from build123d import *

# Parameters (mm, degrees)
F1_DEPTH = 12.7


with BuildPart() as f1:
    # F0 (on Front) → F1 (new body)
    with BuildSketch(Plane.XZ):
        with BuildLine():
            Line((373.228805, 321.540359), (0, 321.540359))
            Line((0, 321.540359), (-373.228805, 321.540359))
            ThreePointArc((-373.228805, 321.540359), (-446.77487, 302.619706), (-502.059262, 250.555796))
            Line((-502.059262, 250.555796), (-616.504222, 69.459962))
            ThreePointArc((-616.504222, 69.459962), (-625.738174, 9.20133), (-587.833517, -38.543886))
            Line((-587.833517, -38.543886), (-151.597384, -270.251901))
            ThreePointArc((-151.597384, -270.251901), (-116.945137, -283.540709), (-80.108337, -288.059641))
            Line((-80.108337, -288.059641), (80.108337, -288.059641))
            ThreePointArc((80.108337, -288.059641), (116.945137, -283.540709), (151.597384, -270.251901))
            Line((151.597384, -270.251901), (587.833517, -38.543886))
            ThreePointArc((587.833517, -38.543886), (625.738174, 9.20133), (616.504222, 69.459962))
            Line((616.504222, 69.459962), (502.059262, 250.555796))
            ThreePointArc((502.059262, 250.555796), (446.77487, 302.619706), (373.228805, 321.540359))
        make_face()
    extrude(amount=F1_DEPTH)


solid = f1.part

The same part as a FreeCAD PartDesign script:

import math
import FreeCAD as App
import Part
import Sketcher
from FreeCAD import Vector
Q = App.Units.Quantity

doc = App.newDocument("Part")
body = doc.addObject("PartDesign::Body", "Body")

sketch1 = doc.addObject("Sketcher::SketchObject", "Sketch")
body.addObject(sketch1)
sketch1.AttachmentSupport = (doc.XZ_Plane, [""])
sketch1.MapMode = "FlatFace"
sketch1.addGeometry(Part.LineSegment(Vector(373, 322, 0), Vector(-373, 322, 0)), False)
sketch1.addGeometry(Part.ArcOfCircle(Part.Circle(Vector(-373, 169, 0), Vector(0, 0, 1), 152), math.radians(90), math.radians(148)), False)
sketch1.addGeometry(Part.LineSegment(Vector(-502, 251, 0), Vector(-617, 69, 0)), False)
sketch1.addGeometry(Part.ArcOfCircle(Part.Circle(Vector(-552, 29, 0), Vector(0, 0, 1), 76), math.radians(148), math.radians(242)), False)
sketch1.addGeometry(Part.LineSegment(Vector(-588, -39, 0), Vector(-152, -270, 0)), False)
sketch1.addGeometry(Part.ArcOfCircle(Part.Circle(Vector(-80, -136, 0), Vector(0, 0, 1), 152), math.radians(-118), math.radians(-90)), False)
sketch1.addGeometry(Part.LineSegment(Vector(-80, -288, 0), Vector(80, -288, 0)), False)
sketch1.addGeometry(Part.ArcOfCircle(Part.Circle(Vector(80, -136, 0), Vector(0, 0, 1), 152), math.radians(-90), math.radians(-62)), False)
sketch1.addGeometry(Part.LineSegment(Vector(152, -270, 0), Vector(588, -39, 0)), False)
sketch1.addGeometry(Part.ArcOfCircle(Part.Circle(Vector(552, 29, 0), Vector(0, 0, 1), 76), math.radians(-62), math.radians(32)), False)
sketch1.addGeometry(Part.LineSegment(Vector(617, 69, 0), Vector(502, 251, 0)), False)
sketch1.addGeometry(Part.ArcOfCircle(Part.Circle(Vector(373, 169, 0), Vector(0, 0, 1), 152), math.radians(32), math.radians(90)), False)
sketch1.addConstraint(Sketcher.Constraint("Tangent", 0, 2, 1, 1))
sketch1.addConstraint(Sketcher.Constraint("Tangent", 1, 2, 2, 1))
sketch1.addConstraint(Sketcher.Constraint("Tangent", 2, 2, 3, 1))
sketch1.addConstraint(Sketcher.Constraint("Tangent", 3, 2, 4, 1))
sketch1.addConstraint(Sketcher.Constraint("Tangent", 4, 2, 5, 1))
sketch1.addConstraint(Sketcher.Constraint("Tangent", 5, 2, 6, 1))
sketch1.addConstraint(Sketcher.Constraint("Tangent", 6, 2, 7, 1))
sketch1.addConstraint(Sketcher.Constraint("Tangent", 7, 2, 8, 1))
sketch1.addConstraint(Sketcher.Constraint("Tangent", 8, 2, 9, 1))
sketch1.addConstraint(Sketcher.Constraint("Tangent", 9, 2, 10, 1))
sketch1.addConstraint(Sketcher.Constraint("Tangent", 10, 2, 11, 1))
sketch1.addConstraint(Sketcher.Constraint("Tangent", 11, 2, 0, 1))
sketch1.addConstraint(Sketcher.Constraint("Horizontal", 0))
sketch1.addConstraint(Sketcher.Constraint("Horizontal", 6))
sketch1.addConstraint(Sketcher.Constraint("Equal", 1, 5))
sketch1.addConstraint(Sketcher.Constraint("Equal", 5, 7))
sketch1.addConstraint(Sketcher.Constraint("Equal", 3, 9))
sketch1.addConstraint(Sketcher.Constraint("Equal", 7, 11))
sketch1.addConstraint(Sketcher.Constraint("Symmetric", 3, 3, 9, 3, -2))
sketch1.addConstraint(Sketcher.Constraint("Horizontal", 2, 2, 9, 2))
sketch1.addConstraint(Sketcher.Constraint("Equal", 4, 8))
sketch1.addConstraint(Sketcher.Constraint("Radius", 3, Q("3 in")))
sketch1.addConstraint(Sketcher.Constraint("Radius", 5, Q("6.0000002 in")))
sketch1.addConstraint(Sketcher.Constraint("DistanceY", 5, 3, 0, 2, Q("17.9999998 in")))
sketch1.addConstraint(Sketcher.Constraint("DistanceX", 0, 2, 0, 1, Q("746.45761 mm")))
sketch1.addConstraint(Sketcher.Constraint("DistanceY", 4, 2, -1, 1, Q("270.251901 mm")))
sketch1.addConstraint(Sketcher.Constraint("DistanceX", 1, 2, 7, 3, Q("582.1676 mm")))
sketch1.addConstraint(Sketcher.Constraint("DistanceY", 5, 3, 2, 2, Q("205.119598 mm")))
sketch1.addConstraint(Sketcher.Constraint("DistanceX", 6, 1, 6, 2, Q("160.216674 mm")))
pad1 = doc.addObject("PartDesign::Pad", "Pad")
body.addObject(pad1)
pad1.Profile = sketch1
pad1.Length = Q("0.5 in")

doc.recompute()
